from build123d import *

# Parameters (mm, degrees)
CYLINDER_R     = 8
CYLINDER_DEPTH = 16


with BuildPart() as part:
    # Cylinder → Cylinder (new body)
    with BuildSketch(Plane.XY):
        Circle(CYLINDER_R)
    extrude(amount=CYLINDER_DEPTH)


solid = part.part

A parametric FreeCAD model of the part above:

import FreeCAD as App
import Part
import Sketcher
Q = App.Units.Quantity

doc = App.newDocument("Part")
body = doc.addObject("PartDesign::Body", "Body")

# Sketch on XY plane
sketch1 = body.newObject("Sketcher::SketchObject", "Sketch")
sketch1.AttachmentSupport = (doc.getObject("XY_Plane"), [""])
sketch1.MapMode = "FlatFace"
sketch1.addGeometry(Part.Circle(App.Vector(0, 0, 0), App.Vector(0, 0, 1), 8), False)
sketch1.addConstraint([
    Sketcher.Constraint("Coincident", 0, 3, -1, 1),
    Sketcher.Constraint("Diameter", 0, Q("16 mm")),
])
pad1 = body.newObject("PartDesign::Pad", "Pad")
pad1.Profile = sketch1
pad1.Length = 16

doc.recompute()
